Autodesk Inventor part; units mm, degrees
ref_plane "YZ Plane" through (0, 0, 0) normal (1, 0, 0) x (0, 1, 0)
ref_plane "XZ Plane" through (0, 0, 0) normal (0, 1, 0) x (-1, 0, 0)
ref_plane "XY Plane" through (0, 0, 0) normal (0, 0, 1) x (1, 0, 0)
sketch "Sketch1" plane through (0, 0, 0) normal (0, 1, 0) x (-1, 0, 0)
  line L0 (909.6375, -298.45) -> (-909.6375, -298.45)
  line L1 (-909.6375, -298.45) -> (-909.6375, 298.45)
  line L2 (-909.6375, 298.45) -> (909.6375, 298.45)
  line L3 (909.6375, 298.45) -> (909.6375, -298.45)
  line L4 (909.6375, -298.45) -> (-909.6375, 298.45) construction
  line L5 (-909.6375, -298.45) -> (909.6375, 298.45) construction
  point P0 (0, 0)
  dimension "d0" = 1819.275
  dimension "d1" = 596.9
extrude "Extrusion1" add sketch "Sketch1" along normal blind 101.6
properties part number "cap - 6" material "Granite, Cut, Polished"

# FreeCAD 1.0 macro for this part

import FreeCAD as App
import Part
import Sketcher
Q = App.Units.Quantity


def add_polygon(sketch, points):
    """Adds a closed chain of lines whose ends are joined by coincident constraints."""
    first, n = sketch.GeometryCount, len(points)
    for a, b in zip(points, points[1:] + points[:1]):
        sketch.addGeometry(Part.LineSegment(App.Vector(*a, 0), App.Vector(*b, 0)), False)
    for i in range(n):
        sketch.addConstraint(Sketcher.Constraint("Coincident", first + i, 2, first + (i + 1) % n, 1))

doc = App.newDocument("Part")
body = doc.addObject("PartDesign::Body", "Body")

sketch1 = body.newObject("Sketcher::SketchObject", "Sketch")
sketch1.AttachmentSupport = (doc.getObject("XZ_Plane"), [""])
sketch1.MapMode = "FlatFace"
add_polygon(sketch1, [(910, -298), (-910, -298), (-910, 298), (910, 298)])
sketch1.addConstraint([
    Sketcher.Constraint("Horizontal", 0),
    Sketcher.Constraint("Vertical", 1),
    Sketcher.Constraint("Horizontal", 2),
    Sketcher.Constraint("Vertical", 3),
    Sketcher.Constraint("Symmetric", 0, 2, 2, 2, -1, 1),
    Sketcher.Constraint("DistanceY", 1, 1, 1, 2, Q("23.5 in")),
    Sketcher.Constraint("DistanceX", 0, 2, 0, 1, Q("71.625 in")),
])
pad1 = body.newObject("PartDesign::Pad", "Pad")
pad1.Profile = sketch1
pad1.Length = Q("4 in")
pad1.Reversed = True

doc.recompute()
